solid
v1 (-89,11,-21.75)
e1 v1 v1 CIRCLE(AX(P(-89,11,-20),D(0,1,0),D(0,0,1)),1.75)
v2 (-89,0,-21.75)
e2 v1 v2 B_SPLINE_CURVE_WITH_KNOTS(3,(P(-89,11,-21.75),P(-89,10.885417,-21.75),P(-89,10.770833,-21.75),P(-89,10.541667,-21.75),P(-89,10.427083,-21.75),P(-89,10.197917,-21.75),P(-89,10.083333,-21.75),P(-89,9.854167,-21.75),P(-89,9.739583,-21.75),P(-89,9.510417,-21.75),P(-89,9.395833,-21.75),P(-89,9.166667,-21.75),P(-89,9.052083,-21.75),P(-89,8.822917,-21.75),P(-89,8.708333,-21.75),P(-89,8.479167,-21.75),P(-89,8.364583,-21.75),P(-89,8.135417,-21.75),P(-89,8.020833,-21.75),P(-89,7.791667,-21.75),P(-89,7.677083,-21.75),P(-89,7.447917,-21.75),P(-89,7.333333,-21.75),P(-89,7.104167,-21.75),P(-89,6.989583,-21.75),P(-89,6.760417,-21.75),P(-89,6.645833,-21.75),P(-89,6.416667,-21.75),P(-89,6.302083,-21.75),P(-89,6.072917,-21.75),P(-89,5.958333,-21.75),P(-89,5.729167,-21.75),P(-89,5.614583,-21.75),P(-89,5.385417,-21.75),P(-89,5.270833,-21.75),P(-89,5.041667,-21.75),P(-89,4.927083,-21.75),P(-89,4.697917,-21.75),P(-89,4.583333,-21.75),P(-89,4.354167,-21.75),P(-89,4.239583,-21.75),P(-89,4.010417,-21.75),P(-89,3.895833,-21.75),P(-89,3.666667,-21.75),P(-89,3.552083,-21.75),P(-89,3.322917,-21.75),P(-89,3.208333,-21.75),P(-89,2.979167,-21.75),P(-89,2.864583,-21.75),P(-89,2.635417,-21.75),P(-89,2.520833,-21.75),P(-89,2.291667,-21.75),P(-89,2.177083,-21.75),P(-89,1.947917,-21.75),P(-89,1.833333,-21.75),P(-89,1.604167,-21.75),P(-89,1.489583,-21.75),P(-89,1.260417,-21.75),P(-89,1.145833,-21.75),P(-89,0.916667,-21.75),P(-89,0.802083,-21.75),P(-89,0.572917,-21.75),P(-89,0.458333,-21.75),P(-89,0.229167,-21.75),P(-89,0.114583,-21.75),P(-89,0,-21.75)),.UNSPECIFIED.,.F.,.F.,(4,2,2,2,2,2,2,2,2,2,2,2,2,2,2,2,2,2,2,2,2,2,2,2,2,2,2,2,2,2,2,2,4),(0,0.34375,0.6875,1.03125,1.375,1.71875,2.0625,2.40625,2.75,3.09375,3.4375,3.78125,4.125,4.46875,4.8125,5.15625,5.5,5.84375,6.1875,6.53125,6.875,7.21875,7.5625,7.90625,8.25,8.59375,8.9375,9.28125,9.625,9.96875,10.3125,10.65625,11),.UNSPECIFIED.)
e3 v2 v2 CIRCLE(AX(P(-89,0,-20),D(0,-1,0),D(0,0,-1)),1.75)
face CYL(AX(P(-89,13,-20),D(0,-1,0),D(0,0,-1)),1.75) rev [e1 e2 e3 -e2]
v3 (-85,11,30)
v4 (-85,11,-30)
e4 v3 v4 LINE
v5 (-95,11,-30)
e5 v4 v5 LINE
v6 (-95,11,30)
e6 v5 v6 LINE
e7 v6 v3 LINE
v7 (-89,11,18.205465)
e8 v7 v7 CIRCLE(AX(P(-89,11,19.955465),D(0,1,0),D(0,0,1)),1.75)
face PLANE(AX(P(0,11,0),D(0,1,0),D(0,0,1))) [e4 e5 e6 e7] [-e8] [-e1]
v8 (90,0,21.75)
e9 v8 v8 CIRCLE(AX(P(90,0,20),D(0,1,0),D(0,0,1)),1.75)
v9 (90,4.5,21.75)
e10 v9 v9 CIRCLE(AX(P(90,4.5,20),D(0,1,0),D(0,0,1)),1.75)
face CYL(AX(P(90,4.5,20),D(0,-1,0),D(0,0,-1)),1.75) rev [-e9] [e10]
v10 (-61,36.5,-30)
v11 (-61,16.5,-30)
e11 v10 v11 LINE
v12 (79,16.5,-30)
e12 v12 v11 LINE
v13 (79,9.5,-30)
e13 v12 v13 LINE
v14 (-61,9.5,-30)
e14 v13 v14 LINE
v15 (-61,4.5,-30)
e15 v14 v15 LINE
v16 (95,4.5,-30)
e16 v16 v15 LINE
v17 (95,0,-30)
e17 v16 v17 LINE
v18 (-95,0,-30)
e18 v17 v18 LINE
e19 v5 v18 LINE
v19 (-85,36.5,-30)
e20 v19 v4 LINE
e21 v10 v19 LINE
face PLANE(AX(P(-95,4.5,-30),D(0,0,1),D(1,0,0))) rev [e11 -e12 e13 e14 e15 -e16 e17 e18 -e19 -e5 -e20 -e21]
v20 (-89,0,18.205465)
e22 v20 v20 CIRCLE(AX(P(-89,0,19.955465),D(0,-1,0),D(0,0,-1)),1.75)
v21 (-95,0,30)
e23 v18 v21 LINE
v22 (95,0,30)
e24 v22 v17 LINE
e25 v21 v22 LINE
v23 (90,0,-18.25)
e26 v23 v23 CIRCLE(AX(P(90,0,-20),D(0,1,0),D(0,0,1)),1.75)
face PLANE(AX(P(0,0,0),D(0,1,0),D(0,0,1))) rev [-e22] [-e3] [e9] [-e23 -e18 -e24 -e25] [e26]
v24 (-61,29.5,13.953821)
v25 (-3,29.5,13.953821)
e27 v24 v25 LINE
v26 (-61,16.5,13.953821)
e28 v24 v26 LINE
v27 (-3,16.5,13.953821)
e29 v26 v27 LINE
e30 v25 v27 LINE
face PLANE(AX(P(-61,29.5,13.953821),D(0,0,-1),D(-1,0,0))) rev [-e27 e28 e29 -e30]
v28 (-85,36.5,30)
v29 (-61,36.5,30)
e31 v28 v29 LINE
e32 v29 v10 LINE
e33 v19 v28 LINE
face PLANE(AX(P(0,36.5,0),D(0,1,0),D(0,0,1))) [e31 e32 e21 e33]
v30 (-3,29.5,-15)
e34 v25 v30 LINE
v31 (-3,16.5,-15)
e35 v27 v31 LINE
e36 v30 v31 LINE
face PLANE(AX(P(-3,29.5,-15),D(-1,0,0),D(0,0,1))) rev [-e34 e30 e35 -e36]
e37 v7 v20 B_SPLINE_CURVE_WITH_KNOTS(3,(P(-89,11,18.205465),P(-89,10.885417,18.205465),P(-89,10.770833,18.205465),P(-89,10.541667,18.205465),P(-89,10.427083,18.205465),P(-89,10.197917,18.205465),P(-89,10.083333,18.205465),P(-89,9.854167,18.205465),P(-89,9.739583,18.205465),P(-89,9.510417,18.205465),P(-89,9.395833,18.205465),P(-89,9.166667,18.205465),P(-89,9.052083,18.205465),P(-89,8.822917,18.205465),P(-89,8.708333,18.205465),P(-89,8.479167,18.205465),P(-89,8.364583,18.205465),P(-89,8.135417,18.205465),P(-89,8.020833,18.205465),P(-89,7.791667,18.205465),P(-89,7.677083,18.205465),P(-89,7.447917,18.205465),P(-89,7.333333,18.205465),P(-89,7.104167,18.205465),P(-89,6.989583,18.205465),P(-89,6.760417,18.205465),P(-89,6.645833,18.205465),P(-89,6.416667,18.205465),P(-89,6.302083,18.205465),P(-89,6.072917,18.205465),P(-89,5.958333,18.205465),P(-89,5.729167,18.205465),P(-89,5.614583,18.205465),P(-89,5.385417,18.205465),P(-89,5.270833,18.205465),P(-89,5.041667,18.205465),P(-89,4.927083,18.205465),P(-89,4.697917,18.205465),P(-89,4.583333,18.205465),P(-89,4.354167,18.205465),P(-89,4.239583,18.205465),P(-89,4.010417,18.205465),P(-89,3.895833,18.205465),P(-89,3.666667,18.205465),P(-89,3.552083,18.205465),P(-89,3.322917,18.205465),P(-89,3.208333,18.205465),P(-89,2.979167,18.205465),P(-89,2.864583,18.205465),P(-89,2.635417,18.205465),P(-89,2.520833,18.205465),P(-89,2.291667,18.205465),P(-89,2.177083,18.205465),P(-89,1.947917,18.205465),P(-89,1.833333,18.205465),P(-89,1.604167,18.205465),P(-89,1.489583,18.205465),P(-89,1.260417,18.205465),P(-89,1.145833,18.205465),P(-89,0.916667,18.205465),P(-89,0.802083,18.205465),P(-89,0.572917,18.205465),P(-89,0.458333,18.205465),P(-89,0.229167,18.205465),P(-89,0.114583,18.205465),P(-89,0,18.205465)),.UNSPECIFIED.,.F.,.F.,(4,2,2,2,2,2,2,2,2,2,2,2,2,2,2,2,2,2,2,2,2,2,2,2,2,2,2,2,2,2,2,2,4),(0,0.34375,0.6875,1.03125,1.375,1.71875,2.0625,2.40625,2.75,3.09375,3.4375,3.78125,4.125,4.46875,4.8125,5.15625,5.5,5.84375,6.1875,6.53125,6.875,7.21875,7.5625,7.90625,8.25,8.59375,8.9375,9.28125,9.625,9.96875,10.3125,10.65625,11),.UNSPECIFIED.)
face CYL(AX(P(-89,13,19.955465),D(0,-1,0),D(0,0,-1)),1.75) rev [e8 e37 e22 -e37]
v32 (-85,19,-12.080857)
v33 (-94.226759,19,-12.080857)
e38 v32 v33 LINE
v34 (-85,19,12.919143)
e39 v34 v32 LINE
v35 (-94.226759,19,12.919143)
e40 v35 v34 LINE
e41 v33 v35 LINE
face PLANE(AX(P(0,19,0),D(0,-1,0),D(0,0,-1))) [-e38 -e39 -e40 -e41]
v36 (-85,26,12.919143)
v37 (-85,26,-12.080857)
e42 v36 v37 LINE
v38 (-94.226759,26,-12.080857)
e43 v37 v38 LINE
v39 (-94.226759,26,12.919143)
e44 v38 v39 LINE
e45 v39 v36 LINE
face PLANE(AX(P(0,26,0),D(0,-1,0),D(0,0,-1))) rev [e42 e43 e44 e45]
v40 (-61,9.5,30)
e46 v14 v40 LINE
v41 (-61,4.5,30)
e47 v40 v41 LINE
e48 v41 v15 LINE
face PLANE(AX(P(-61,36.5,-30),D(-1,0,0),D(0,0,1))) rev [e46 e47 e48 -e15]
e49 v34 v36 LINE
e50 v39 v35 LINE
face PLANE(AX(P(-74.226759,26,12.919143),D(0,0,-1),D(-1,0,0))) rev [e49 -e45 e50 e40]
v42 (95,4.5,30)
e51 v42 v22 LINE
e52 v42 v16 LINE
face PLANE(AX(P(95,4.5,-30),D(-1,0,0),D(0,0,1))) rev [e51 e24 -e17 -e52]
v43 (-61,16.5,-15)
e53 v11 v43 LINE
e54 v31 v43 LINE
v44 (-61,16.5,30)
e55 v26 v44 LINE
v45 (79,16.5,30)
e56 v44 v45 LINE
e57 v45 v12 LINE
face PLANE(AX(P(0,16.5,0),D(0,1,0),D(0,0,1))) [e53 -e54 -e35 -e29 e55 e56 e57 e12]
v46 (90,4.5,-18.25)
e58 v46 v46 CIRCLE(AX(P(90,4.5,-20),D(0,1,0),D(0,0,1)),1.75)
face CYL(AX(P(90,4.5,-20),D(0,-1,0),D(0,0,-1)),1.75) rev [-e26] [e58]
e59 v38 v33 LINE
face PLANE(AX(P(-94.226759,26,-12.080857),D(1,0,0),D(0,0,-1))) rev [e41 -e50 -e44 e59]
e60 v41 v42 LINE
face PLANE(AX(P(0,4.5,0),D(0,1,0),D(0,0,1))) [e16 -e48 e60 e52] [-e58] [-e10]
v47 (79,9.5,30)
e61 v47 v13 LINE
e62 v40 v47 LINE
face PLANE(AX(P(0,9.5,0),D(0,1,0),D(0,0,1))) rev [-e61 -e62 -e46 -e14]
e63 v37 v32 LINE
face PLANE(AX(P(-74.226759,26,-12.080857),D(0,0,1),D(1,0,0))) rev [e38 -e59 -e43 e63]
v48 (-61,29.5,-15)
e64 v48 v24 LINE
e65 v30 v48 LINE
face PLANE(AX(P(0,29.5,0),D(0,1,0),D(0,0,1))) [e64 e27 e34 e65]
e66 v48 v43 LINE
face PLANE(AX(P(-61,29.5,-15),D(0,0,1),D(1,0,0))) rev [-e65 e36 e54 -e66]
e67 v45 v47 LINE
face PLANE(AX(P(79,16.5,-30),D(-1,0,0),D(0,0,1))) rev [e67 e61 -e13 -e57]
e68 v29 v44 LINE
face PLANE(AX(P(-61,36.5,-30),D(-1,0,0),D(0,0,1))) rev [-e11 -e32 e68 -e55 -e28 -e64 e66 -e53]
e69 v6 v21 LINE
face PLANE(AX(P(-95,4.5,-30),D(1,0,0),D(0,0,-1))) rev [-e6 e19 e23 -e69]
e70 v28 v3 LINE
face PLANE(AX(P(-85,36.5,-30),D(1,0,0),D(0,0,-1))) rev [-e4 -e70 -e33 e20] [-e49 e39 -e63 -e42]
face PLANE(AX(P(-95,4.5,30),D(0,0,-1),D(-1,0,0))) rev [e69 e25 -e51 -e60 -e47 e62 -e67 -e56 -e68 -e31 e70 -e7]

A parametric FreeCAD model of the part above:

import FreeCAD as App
import Part
import Sketcher
from FreeCAD import Vector

doc = App.newDocument("Part")
body = doc.addObject("PartDesign::Body", "Body")

sketch1 = body.newObject("Sketcher::SketchObject", "Sketch")
sketch1.AttachmentSupport = (doc.getObject("XZ_Plane"), [""])
sketch1.MapMode = "FlatFace"
sketch1.addGeometry([
    Part.LineSegment(Vector(-95, -30, 0), Vector(-95, 30, 0)),
    Part.LineSegment(Vector(-95, 30, 0), Vector(95, 30, 0)),
    Part.LineSegment(Vector(95, 30, 0), Vector(95, -30, 0)),
    Part.LineSegment(Vector(95, -30, 0), Vector(-95, -30, 0)),
    Part.Circle(Vector(90, 20, 0), Vector(0, 0, 1), 1.8),
    Part.Circle(Vector(90, -20, 0), Vector(0, 0, 1), 1.8),
], False)
sketch1.addConstraint([
    Sketcher.Constraint("Coincident", 0, 2, 1, 1),
    Sketcher.Constraint("Coincident", 1, 2, 2, 1),
    Sketcher.Constraint("Coincident", 2, 2, 3, 1),
    Sketcher.Constraint("Coincident", 3, 2, 0, 1),
    Sketcher.Constraint("Vertical", 0),
    Sketcher.Constraint("Horizontal", 1),
    Sketcher.Constraint("Vertical", 2),
    Sketcher.Constraint("Horizontal", 3),
    Sketcher.Constraint("Equal", 4, 5),
    Sketcher.Constraint("Symmetric", 0, 2, 2, 2, -1, 1),
    Sketcher.Constraint("Symmetric", 4, 3, 5, 3, -1),
    Sketcher.Constraint("Diameter", 4, 3.5),
    Sketcher.Constraint("DistanceX", 1, 1, 1, 2, 190.0),
    Sketcher.Constraint("DistanceY", 0, 1, 0, 2, 60.0),
    Sketcher.Constraint("DistanceX", -1, 1, 4, 3, 90.0),
    Sketcher.Constraint("DistanceY", -1, 1, 4, 3, 20.0),
])
pad1 = body.newObject("PartDesign::Pad", "Pad")
pad1.Profile = sketch1
pad1.Length = 4.5
pad1.Reversed = True

sketch2 = body.newObject("Sketcher::SketchObject", "Sketch001")
sketch2.AttachmentSupport = (doc.getObject("XZ_Plane"), [""])
sketch2.MapMode = "FlatFace"
sketch2.AttachmentOffset = App.Placement(Vector(0, 0, -4.5), App.Rotation())
sketch2.addGeometry([
    Part.LineSegment(Vector(-95, -30, 0), Vector(-95, 30, 0)),
    Part.LineSegment(Vector(-95, 30, 0), Vector(-85, 30, 0)),
    Part.LineSegment(Vector(-85, 30, 0), Vector(-85, -30, 0)),
    Part.LineSegment(Vector(-85, -30, 0), Vector(-95, -30, 0)),
], False)
sketch2.addConstraint([
    Sketcher.Constraint("Coincident", 0, 2, 1, 1),
    Sketcher.Constraint("Coincident", 1, 2, 2, 1),
    Sketcher.Constraint("Coincident", 2, 2, 3, 1),
    Sketcher.Constraint("Coincident", 3, 2, 0, 1),
    Sketcher.Constraint("Vertical", 0),
    Sketcher.Constraint("Horizontal", 1),
    Sketcher.Constraint("Vertical", 2),
    Sketcher.Constraint("Horizontal", 3),
    Sketcher.Constraint("DistanceX", 1, 1, 1, 2, 10.0),
    Sketcher.Constraint("DistanceY", 0, 1, 0, 2, 60.0),
    Sketcher.Constraint("DistanceX", 0, 2, -1, 1, 95.0),
    Sketcher.Constraint("DistanceY", -1, 1, 0, 2, 30.0),
])
pad2 = body.newObject("PartDesign::Pad", "Pad001")
pad2.Profile = sketch2
pad2.Length = 6.5
pad2.Reversed = True

sketch3 = body.newObject("Sketcher::SketchObject", "Sketch002")
sketch3.AttachmentSupport = (doc.getObject("XZ_Plane"), [""])
sketch3.MapMode = "FlatFace"
sketch3.AttachmentOffset = App.Placement(Vector(0, 0, -4.5), App.Rotation())
sketch3.addGeometry([
    Part.LineSegment(Vector(-85, -30, 0), Vector(-85, 30, 0)),
    Part.LineSegment(Vector(-85, 30, 0), Vector(-61, 30, 0)),
    Part.LineSegment(Vector(-61, 30, 0), Vector(-61, -30, 0)),
    Part.LineSegment(Vector(-61, -30, 0), Vector(-85, -30, 0)),
], False)
sketch3.addConstraint([
    Sketcher.Constraint("Coincident", 0, 2, 1, 1),
    Sketcher.Constraint("Coincident", 1, 2, 2, 1),
    Sketcher.Constraint("Coincident", 2, 2, 3, 1),
    Sketcher.Constraint("Coincident", 3, 2, 0, 1),
    Sketcher.Constraint("Vertical", 0),
    Sketcher.Constraint("Horizontal", 1),
    Sketcher.Constraint("Vertical", 2),
    Sketcher.Constraint("Horizontal", 3),
    Sketcher.Constraint("DistanceX", 1, 1, 1, 2, 24.0),
    Sketcher.Constraint("DistanceY", 0, 1, 0, 2, 60.0),
    Sketcher.Constraint("DistanceX", 0, 2, -1, 1, 85.0),
    Sketcher.Constraint("DistanceY", -1, 1, 0, 2, 30.0),
])
pad3 = body.newObject("PartDesign::Pad", "Pad002")
pad3.Profile = sketch3
pad3.Length = 32
pad3.Reversed = True

sketch4 = body.newObject("Sketcher::SketchObject", "Sketch003")
sketch4.AttachmentSupport = (doc.getObject("XZ_Plane"), [""])
sketch4.MapMode = "FlatFace"
sketch4.AttachmentOffset = App.Placement(Vector(0, 0, -19), App.Rotation())
sketch4.addGeometry([
    Part.LineSegment(Vector(-94, -12, 0), Vector(-94, 13, 0)),
    Part.LineSegment(Vector(-94, 13, 0), Vector(-74, 13, 0)),
    Part.LineSegment(Vector(-74, 13, 0), Vector(-74, -12, 0)),
    Part.LineSegment(Vector(-74, -12, 0), Vector(-94, -12, 0)),
], False)
sketch4.addConstraint([
    Sketcher.Constraint("Coincident", 0, 2, 1, 1),
    Sketcher.Constraint("Coincident", 1, 2, 2, 1),
    Sketcher.Constraint("Coincident", 2, 2, 3, 1),
    Sketcher.Constraint("Coincident", 3, 2, 0, 1),
    Sketcher.Constraint("Vertical", 0),
    Sketcher.Constraint("Horizontal", 1),
    Sketcher.Constraint("Vertical", 2),
    Sketcher.Constraint("Horizontal", 3),
    Sketcher.Constraint("DistanceX", 1, 1, 1, 2, 20.0),
    Sketcher.Constraint("DistanceY", 0, 1, 0, 2, 25.0),
    Sketcher.Constraint("DistanceX", 0, 2, -1, 1, 94.226759),
    Sketcher.Constraint("DistanceY", -1, 1, 0, 2, 12.919143),
])
pad4 = body.newObject("PartDesign::Pad", "Pad003")
pad4.Profile = sketch4
pad4.Length = 7
pad4.Reversed = True

sketch5 = body.newObject("Sketcher::SketchObject", "Sketch004")
sketch5.AttachmentSupport = (doc.getObject("XZ_Plane"), [""])
sketch5.MapMode = "FlatFace"
sketch5.AttachmentOffset = App.Placement(Vector(0, 0, -9.5), App.Rotation())
sketch5.addGeometry([
    Part.LineSegment(Vector(-61, -30, 0), Vector(-61, 30, 0)),
    Part.LineSegment(Vector(-61, 30, 0), Vector(79, 30, 0)),
    Part.LineSegment(Vector(79, 30, 0), Vector(79, -30, 0)),
    Part.LineSegment(Vector(79, -30, 0), Vector(-61, -30, 0)),
], False)
sketch5.addConstraint([
    Sketcher.Constraint("Coincident", 0, 2, 1, 1),
    Sketcher.Constraint("Coincident", 1, 2, 2, 1),
    Sketcher.Constraint("Coincident", 2, 2, 3, 1),
    Sketcher.Constraint("Coincident", 3, 2, 0, 1),
    Sketcher.Constraint("Vertical", 0),
    Sketcher.Constraint("Horizontal", 1),
    Sketcher.Constraint("Vertical", 2),
    Sketcher.Constraint("Horizontal", 3),
    Sketcher.Constraint("DistanceX", 1, 1, 1, 2, 140.0),
    Sketcher.Constraint("DistanceY", 0, 1, 0, 2, 60.0),
    Sketcher.Constraint("DistanceX", 0, 2, -1, 1, 61.0),
    Sketcher.Constraint("DistanceY", -1, 1, 0, 2, 30.0),
])
pad5 = body.newObject("PartDesign::Pad", "Pad004")
pad5.Profile = sketch5
pad5.Length = 7
pad5.Reversed = True

sketch6 = body.newObject("Sketcher::SketchObject", "Sketch005")
sketch6.AttachmentSupport = (doc.getObject("XZ_Plane"), [""])
sketch6.MapMode = "FlatFace"
sketch6.AttachmentOffset = App.Placement(Vector(0, 0, -16.5), App.Rotation())
sketch6.addGeometry([
    Part.LineSegment(Vector(-61, -15, 0), Vector(-61, 14, 0)),
    Part.LineSegment(Vector(-61, 14, 0), Vector(-3, 14, 0)),
    Part.LineSegment(Vector(-3, 14, 0), Vector(-3, -15, 0)),
    Part.LineSegment(Vector(-3, -15, 0), Vector(-61, -15, 0)),
], False)
sketch6.addConstraint([
    Sketcher.Constraint("Coincident", 0, 2, 1, 1),
    Sketcher.Constraint("Coincident", 1, 2, 2, 1),
    Sketcher.Constraint("Coincident", 2, 2, 3, 1),
    Sketcher.Constraint("Coincident", 3, 2, 0, 1),
    Sketcher.Constraint("Vertical", 0),
    Sketcher.Constraint("Horizontal", 1),
    Sketcher.Constraint("Vertical", 2),
    Sketcher.Constraint("Horizontal", 3),
    Sketcher.Constraint("DistanceX", 1, 1, 1, 2, 58.0),
    Sketcher.Constraint("DistanceX", 0, 2, -1, 1, 61.0),
    Sketcher.Constraint("DistanceY", 2, 2, -1, 1, 15.0),
    Sketcher.Constraint("DistanceY", 0, 1, 0, 2, 28.953821),
])
pad6 = body.newObject("PartDesign::Pad", "Pad005")
pad6.Profile = sketch6
pad6.Length = 13
pad6.Reversed = True

sketch7 = body.newObject("Sketcher::SketchObject", "Sketch006")
sketch7.AttachmentSupport = (doc.getObject("XZ_Plane"), [""])
sketch7.MapMode = "FlatFace"
sketch7.addGeometry([
    Part.Circle(Vector(-89, -20, 0), Vector(0, 0, 1), 1.8),
    Part.Circle(Vector(-89, 20, 0), Vector(0, 0, 1), 1.8),
], False)
sketch7.addConstraint([
    Sketcher.Constraint("Equal", 0, 1),
    Sketcher.Constraint("Vertical", 0, 3, 1, 3),
    Sketcher.Constraint("Diameter", 0, 3.5),
    Sketcher.Constraint("DistanceX", 0, 3, -1, 1, 89.0),
    Sketcher.Constraint("DistanceY", 0, 3, -1, 1, 20.0),
    Sketcher.Constraint("DistanceY", -1, 1, 1, 3, 19.955465),
])
pocket1 = body.newObject("PartDesign::Pocket", "Pocket")
pocket1.Profile = sketch7
pocket1.Length = 13

doc.recompute()
